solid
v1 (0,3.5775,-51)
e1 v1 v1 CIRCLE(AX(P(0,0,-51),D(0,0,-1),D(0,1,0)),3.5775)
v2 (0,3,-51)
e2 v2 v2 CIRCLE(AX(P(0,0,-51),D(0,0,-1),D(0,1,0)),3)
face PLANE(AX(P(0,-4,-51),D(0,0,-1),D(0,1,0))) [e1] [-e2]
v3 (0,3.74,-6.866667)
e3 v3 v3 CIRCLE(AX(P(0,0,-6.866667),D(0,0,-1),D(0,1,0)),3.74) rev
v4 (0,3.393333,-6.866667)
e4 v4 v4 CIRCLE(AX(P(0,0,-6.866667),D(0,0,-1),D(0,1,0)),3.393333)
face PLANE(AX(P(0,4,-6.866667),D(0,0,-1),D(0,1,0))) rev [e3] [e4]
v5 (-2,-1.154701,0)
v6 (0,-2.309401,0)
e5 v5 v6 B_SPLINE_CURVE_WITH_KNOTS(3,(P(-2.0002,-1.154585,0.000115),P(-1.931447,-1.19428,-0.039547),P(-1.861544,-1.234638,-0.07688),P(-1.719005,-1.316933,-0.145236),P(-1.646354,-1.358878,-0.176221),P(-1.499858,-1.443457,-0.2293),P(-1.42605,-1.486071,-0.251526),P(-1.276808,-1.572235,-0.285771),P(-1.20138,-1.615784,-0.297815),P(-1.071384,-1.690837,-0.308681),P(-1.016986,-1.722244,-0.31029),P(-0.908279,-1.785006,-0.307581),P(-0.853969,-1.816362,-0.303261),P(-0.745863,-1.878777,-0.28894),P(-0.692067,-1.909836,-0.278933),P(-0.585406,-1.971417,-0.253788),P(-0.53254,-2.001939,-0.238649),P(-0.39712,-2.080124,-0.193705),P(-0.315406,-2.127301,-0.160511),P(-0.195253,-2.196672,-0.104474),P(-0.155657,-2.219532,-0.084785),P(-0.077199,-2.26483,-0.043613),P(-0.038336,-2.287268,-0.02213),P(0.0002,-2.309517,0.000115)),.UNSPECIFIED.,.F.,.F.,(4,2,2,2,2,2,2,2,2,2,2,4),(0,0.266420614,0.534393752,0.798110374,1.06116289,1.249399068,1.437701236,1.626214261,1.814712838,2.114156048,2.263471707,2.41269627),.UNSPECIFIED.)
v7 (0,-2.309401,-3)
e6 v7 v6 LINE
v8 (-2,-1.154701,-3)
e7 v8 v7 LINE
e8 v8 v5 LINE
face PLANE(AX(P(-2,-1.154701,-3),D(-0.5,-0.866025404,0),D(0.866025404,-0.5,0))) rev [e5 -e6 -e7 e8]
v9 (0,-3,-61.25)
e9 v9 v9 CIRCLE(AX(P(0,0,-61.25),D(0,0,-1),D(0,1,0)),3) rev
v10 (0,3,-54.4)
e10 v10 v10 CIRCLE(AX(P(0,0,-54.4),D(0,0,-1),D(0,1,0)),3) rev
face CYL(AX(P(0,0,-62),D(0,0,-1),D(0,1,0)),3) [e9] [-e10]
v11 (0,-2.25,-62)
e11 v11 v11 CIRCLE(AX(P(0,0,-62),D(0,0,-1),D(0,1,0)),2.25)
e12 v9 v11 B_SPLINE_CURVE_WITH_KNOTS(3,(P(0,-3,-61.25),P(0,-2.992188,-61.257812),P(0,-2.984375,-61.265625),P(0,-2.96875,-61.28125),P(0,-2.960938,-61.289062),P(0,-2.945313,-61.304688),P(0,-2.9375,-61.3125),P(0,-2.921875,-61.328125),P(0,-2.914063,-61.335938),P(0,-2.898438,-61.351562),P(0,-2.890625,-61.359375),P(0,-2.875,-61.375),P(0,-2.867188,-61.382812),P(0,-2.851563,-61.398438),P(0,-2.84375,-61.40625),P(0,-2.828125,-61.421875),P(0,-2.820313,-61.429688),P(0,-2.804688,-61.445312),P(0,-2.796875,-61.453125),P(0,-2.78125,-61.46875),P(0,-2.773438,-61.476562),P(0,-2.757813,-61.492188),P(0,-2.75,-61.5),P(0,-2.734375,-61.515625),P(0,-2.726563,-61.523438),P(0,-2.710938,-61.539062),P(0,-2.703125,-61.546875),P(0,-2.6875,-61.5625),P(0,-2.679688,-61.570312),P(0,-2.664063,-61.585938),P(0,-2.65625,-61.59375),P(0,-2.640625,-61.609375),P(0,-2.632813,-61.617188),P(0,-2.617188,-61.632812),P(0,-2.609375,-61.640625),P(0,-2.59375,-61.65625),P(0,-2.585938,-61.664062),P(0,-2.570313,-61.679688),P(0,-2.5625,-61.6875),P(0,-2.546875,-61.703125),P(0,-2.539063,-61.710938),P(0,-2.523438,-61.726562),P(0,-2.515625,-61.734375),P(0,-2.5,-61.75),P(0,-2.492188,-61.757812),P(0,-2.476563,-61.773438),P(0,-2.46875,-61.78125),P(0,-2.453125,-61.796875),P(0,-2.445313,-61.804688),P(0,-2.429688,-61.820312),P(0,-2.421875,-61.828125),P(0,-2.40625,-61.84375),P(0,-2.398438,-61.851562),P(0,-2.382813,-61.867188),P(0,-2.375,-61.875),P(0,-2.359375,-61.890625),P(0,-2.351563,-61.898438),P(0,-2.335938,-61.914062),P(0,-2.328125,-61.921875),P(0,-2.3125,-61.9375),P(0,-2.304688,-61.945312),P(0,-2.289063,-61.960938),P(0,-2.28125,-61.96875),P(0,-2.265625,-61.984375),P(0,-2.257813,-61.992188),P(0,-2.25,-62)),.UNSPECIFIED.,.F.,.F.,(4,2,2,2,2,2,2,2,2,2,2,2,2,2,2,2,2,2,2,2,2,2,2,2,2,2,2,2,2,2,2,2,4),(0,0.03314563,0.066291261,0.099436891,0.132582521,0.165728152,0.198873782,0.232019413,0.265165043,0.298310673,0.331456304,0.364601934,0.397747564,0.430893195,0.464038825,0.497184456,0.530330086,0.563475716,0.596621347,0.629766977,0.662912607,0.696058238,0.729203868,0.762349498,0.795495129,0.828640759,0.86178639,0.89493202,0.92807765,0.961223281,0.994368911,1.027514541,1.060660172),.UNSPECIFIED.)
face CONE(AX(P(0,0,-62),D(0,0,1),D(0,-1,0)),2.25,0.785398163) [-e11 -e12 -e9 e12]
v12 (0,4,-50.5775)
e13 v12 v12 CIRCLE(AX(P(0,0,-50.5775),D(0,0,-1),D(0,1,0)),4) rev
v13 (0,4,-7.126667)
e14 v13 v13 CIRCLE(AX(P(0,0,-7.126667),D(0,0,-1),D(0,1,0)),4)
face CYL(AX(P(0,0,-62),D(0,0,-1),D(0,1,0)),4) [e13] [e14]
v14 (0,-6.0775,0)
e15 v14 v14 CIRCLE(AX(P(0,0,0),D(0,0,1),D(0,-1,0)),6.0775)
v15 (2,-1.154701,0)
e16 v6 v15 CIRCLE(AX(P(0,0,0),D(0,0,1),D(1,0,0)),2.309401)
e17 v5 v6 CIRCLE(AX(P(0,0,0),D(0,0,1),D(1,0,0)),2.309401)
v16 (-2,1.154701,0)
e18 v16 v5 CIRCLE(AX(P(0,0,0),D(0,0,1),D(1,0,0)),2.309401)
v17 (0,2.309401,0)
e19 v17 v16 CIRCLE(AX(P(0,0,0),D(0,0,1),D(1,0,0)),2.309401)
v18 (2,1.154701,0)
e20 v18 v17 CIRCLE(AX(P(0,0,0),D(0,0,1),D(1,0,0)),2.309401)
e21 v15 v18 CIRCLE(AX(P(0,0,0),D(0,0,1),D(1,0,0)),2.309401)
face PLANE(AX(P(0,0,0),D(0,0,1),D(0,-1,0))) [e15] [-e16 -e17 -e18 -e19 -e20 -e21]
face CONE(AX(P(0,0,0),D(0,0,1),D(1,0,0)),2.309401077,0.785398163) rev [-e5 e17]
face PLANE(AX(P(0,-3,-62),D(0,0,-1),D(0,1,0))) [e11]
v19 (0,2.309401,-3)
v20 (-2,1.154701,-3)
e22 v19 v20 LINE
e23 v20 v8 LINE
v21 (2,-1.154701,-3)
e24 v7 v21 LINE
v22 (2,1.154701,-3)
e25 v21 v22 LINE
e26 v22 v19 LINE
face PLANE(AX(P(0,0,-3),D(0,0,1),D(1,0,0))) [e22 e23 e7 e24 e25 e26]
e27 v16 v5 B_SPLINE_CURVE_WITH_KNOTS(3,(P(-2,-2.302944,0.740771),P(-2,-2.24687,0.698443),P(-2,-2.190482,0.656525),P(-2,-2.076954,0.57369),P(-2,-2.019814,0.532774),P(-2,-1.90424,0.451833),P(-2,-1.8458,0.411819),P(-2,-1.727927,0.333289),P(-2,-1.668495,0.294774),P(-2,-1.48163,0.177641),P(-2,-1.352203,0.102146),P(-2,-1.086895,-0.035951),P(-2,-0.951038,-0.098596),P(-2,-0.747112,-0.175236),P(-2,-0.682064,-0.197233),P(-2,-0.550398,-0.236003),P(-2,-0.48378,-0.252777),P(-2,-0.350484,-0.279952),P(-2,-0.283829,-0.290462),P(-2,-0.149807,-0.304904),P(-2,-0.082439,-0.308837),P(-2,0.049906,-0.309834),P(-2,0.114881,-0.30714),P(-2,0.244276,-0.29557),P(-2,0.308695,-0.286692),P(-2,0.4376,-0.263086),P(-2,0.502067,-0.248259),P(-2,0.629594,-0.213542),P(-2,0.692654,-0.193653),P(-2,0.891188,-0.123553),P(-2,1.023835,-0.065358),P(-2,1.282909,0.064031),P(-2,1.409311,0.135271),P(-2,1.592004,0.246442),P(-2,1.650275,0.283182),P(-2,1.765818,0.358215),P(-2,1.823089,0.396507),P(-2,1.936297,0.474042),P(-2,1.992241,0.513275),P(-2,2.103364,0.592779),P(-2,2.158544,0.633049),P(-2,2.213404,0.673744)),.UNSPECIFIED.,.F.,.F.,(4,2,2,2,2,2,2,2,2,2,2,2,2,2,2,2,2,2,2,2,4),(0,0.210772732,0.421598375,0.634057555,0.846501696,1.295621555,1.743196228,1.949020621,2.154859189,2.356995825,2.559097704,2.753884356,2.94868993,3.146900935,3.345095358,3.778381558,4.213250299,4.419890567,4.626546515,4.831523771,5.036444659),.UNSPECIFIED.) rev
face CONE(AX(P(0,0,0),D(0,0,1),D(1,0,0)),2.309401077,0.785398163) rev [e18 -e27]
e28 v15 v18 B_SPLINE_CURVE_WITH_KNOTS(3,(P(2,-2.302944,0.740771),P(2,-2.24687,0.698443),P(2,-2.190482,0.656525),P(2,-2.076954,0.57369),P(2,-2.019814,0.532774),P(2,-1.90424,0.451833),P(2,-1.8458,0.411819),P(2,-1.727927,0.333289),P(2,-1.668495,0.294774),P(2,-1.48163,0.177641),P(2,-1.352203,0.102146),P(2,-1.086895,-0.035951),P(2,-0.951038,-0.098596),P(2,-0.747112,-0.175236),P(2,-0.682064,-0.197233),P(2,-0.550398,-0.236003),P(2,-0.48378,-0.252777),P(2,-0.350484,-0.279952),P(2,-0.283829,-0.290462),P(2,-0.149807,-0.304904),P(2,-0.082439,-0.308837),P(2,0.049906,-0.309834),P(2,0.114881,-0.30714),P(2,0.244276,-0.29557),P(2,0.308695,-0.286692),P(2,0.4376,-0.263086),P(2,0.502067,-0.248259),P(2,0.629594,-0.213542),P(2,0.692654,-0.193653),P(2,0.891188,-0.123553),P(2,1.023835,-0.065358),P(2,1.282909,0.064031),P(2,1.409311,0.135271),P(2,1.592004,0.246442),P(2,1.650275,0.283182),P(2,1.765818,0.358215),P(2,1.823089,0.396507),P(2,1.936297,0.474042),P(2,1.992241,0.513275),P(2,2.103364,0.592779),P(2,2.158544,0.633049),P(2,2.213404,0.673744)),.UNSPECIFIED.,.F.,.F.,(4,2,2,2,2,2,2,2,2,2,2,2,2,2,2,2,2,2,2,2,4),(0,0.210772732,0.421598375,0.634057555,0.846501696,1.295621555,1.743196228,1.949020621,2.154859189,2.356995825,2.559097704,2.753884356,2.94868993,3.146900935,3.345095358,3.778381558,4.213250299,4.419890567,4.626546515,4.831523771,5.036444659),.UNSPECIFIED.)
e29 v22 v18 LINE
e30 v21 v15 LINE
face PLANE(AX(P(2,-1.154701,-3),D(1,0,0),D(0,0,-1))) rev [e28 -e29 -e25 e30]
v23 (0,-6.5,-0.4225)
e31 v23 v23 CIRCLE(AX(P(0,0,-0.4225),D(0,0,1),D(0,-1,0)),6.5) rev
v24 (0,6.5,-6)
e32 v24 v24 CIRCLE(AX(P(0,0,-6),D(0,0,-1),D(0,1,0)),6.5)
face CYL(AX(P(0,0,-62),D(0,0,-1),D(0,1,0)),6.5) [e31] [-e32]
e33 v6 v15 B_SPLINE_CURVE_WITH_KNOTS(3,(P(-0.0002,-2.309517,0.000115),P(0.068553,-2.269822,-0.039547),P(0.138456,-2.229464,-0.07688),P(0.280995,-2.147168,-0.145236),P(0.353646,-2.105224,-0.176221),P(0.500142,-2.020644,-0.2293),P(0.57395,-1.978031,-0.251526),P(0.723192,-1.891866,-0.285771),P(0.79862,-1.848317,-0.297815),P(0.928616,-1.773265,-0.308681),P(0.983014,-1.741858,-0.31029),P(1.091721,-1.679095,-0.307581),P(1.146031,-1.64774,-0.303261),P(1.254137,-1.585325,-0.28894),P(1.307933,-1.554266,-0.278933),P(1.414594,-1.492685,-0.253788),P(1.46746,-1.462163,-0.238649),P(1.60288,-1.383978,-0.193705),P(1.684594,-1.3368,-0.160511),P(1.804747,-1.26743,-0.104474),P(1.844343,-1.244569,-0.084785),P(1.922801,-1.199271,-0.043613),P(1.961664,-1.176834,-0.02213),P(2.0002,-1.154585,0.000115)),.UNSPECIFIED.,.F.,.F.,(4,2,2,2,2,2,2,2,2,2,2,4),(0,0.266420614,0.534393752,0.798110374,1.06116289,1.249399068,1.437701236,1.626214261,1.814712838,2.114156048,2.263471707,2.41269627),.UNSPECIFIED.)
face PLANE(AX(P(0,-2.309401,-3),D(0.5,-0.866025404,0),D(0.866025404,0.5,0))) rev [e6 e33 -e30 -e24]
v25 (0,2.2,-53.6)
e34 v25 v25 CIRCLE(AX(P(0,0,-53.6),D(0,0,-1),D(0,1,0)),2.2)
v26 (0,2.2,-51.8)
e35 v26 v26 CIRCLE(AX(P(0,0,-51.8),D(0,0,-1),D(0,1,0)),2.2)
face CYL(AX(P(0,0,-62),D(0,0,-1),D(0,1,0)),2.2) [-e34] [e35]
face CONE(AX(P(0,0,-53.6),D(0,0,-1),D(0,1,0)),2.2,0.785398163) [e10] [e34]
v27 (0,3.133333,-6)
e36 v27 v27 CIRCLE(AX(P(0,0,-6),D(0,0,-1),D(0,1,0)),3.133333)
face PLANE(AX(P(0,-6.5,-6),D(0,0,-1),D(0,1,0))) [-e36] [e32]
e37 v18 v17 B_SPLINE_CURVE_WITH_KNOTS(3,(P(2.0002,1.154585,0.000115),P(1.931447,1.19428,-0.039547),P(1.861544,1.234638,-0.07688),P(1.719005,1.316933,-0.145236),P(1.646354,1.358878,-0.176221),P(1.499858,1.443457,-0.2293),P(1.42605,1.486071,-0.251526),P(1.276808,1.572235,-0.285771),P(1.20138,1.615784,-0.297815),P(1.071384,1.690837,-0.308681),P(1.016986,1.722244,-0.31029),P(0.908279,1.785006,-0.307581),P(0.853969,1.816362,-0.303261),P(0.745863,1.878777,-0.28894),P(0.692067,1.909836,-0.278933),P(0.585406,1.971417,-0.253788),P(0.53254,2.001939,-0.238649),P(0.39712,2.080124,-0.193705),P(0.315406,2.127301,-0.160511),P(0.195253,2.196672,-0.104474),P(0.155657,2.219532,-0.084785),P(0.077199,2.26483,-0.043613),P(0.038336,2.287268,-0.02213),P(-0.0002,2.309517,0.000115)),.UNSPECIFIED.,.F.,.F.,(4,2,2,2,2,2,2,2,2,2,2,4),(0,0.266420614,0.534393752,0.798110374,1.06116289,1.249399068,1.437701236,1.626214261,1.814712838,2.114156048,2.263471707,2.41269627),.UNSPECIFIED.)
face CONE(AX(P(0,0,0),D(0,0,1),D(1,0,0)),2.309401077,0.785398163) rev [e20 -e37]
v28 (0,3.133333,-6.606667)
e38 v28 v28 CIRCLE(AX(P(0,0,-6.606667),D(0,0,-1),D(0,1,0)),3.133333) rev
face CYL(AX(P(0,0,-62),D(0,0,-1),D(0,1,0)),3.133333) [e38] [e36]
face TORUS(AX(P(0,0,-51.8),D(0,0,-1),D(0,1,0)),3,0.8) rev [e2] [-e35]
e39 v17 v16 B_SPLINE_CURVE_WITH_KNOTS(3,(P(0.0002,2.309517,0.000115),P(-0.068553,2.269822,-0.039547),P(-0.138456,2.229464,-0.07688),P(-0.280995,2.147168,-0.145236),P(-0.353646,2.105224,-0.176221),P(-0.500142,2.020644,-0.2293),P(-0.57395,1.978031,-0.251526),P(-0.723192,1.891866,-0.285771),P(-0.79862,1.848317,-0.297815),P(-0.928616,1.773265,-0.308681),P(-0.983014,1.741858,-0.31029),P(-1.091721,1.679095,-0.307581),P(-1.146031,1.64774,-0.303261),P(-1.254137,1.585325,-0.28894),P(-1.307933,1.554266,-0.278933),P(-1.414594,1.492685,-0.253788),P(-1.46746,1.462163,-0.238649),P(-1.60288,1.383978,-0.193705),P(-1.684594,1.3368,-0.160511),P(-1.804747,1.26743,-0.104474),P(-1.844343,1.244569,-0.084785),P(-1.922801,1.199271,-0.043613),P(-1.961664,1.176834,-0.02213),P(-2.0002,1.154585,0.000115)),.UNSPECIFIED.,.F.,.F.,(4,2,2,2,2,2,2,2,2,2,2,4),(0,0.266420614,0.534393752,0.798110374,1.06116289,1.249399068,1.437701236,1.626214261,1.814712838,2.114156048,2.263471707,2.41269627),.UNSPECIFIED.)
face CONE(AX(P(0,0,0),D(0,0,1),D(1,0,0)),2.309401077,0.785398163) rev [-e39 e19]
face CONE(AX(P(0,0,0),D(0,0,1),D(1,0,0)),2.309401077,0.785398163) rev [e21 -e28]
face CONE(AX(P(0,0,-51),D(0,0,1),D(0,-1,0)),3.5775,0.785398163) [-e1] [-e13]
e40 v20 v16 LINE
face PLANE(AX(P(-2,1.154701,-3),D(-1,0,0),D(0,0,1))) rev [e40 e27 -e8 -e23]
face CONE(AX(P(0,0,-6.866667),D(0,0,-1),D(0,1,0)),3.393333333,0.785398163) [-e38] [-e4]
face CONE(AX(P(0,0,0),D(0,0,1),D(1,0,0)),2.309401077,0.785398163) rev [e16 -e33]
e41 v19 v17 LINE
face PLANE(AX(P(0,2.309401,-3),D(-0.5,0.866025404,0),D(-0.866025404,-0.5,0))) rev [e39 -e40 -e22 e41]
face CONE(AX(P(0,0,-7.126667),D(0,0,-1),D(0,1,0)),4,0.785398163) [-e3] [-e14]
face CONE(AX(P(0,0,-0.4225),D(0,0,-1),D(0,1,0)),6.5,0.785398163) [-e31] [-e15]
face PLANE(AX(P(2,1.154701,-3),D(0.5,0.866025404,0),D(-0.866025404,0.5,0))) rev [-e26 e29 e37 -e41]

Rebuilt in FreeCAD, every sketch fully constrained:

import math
import FreeCAD as App
import Part
import Sketcher

V = App.Vector
Q = App.Units.Quantity


def edges_at(feature, points):
    """Names of the edges that pass closest to the given points."""
    edges = feature.Shape.Edges
    near = lambda p: min(range(len(edges)), key=lambda i: edges[i].distToShape(Part.Vertex(*p))[0])
    return sorted({f"Edge{near(p) + 1}" for p in points})

doc = App.newDocument("Part")
body = doc.addObject("PartDesign::Body", "Body")

# Sketch on YZ plane
sketch1 = doc.addObject("Sketcher::SketchObject", "Sketch")
body.addObject(sketch1)
sketch1.AttachmentSupport = (doc.YZ_Plane, [""])
sketch1.MapMode = "FlatFace"
sketch1.addGeometry([
    Part.LineSegment(V(6.5, -6, 0), V(6.5, 0, 0)),  # 0
    Part.LineSegment(V(6.5, 0, 0), V(0, 0, 0)),  # 1
    Part.LineSegment(V(0, 0, 0), V(0, -62, 0)),  # 2
    Part.LineSegment(V(0, -62, 0), V(3, -62, 0)),  # 3
    Part.LineSegment(V(3, -62, 0), V(3, -51, 0)),  # 4
    Part.LineSegment(V(3, -51, 0), V(4, -51, 0)),  # 5
    Part.LineSegment(V(4, -51, 0), V(4, -6, 0)),  # 6
    Part.LineSegment(V(4, -6, 0), V(6.5, -6, 0)),  # 7
], False)
sketch1.addConstraint([
    Sketcher.Constraint("Coincident", 0, 2, 1, 1),
    Sketcher.Constraint("Coincident", 1, 2, 2, 1),
    Sketcher.Constraint("Coincident", 2, 2, 3, 1),
    Sketcher.Constraint("Coincident", 3, 2, 4, 1),
    Sketcher.Constraint("Coincident", 4, 2, 5, 1),
    Sketcher.Constraint("Coincident", 5, 2, 6, 1),
    Sketcher.Constraint("Coincident", 6, 2, 7, 1),
    Sketcher.Constraint("Coincident", 7, 2, 0, 1),
    Sketcher.Constraint("Vertical", 0),
    Sketcher.Constraint("Horizontal", 1),
    Sketcher.Constraint("Vertical", 2),
    Sketcher.Constraint("Horizontal", 3),
    Sketcher.Constraint("Vertical", 4),
    Sketcher.Constraint("Horizontal", 5),
    Sketcher.Constraint("Vertical", 6),
    Sketcher.Constraint("Horizontal", 7),
    Sketcher.Constraint("Coincident", 1, 2, -1, 1),
    Sketcher.Constraint("DistanceX", 3, 1, 3, 2, Q("3 mm")),
    Sketcher.Constraint("DistanceX", 5, 1, 5, 2, Q("1 mm")),
    Sketcher.Constraint("DistanceY", 0, 1, 0, 2, Q("6 mm")),
    Sketcher.Constraint("DistanceY", 2, 2, 2, 1, Q("62 mm")),
    Sketcher.Constraint("DistanceY", 4, 1, 4, 2, Q("11 mm")),
    Sketcher.Constraint("DistanceX", 1, 2, 1, 1, Q("6.5 mm")),
])
revolution = doc.addObject("PartDesign::Revolution", "Revolution")
body.addObject(revolution)
revolution.Profile = sketch1
revolution.ReferenceAxis = (sketch1, ["V_Axis"])
revolution.Angle = 360

# Sketch on YZ plane
sketch2 = doc.addObject("Sketcher::SketchObject", "Sketch001")
body.addObject(sketch2)
sketch2.AttachmentSupport = (doc.YZ_Plane, [""])
sketch2.MapMode = "FlatFace"
sketch2.addGeometry([
    Part.LineSegment(V(4, -6, 0), V(3.1, -6, 0)),
    Part.LineSegment(V(3.1, -6, 0), V(3.1, -6.9, 0)),
    Part.LineSegment(V(3.1, -6.9, 0), V(4, -6.9, 0)),
    Part.LineSegment(V(4, -6.9, 0), V(4, -6, 0)),
], False)
sketch2.addConstraint([
    Sketcher.Constraint("Coincident", 0, 2, 1, 1),
    Sketcher.Constraint("Coincident", 1, 2, 2, 1),
    Sketcher.Constraint("Coincident", 2, 2, 3, 1),
    Sketcher.Constraint("Coincident", 3, 2, 0, 1),
    Sketcher.Constraint("Horizontal", 0),
    Sketcher.Constraint("Vertical", 1),
    Sketcher.Constraint("Horizontal", 2),
    Sketcher.Constraint("Vertical", 3),
    Sketcher.Constraint("Equal", 2, 1),
    Sketcher.Constraint("DistanceY", 0, 2, -1, 1, Q("6 mm")),
    Sketcher.Constraint("DistanceX", -1, 1, 2, 2, Q("4 mm")),
    Sketcher.Constraint("DistanceX", 0, 2, 0, 1, Q("0.866667 mm")),
])
groove = doc.addObject("PartDesign::Groove", "Groove")
body.addObject(groove)
groove.Profile = sketch2
groove.ReferenceAxis = (sketch2, ["V_Axis"])
groove.Angle = 360
doc.recompute()

chamfer = doc.addObject("PartDesign::Chamfer", "Chamfer")
body.addObject(chamfer)
chamfer.Base = (groove, edges_at(groove, [(0, -3.133, -6.867), (0, -4, -6.867)]))
chamfer.Size = 0.26

# Sketch on YZ plane
sketch3 = doc.addObject("Sketcher::SketchObject", "Sketch002")
body.addObject(sketch3)
sketch3.AttachmentSupport = (doc.YZ_Plane, [""])
sketch3.MapMode = "FlatFace"
sketch3.addGeometry([
    Part.LineSegment(V(4, -55.4, 0), V(4, -51, 0)),  # 0
    Part.LineSegment(V(4, -51, 0), V(3, -51, 0)),  # 1
    Part.ArcOfCircle(Part.Circle(V(3, -51.8, 0), V(0, 0, 1), 0.8), math.radians(90), math.radians(180)),  # 2
    Part.LineSegment(V(2.2, -51.8, 0), V(2.2, -53.6, 0)),  # 3
    Part.LineSegment(V(2.2, -53.6, 0), V(4, -55.4, 0)),  # 4
], False)
sketch3.addConstraint([
    Sketcher.Constraint("Coincident", 0, 2, 1, 1),
    Sketcher.Constraint("Tangent", 1, 2, 2, 1),
    Sketcher.Constraint("Tangent", 2, 2, 3, 1),
    Sketcher.Constraint("Coincident", 3, 2, 4, 1),
    Sketcher.Constraint("Coincident", 4, 2, 0, 1),
    Sketcher.Constraint("Vertical", 0),
    Sketcher.Constraint("Horizontal", 1),
    Sketcher.Constraint("Vertical", 3),
    Sketcher.Constraint("Radius", 2, Q("0.8 mm")),
    Sketcher.Constraint("DistanceX", 1, 2, 1, 1, Q("1 mm")),
    Sketcher.Constraint("Angle", 4, Q("-45 deg")),
    Sketcher.Constraint("DistanceY", 0, 1, 0, 2, Q("4.4 mm")),
    Sketcher.Constraint("DistanceX", -1, 1, 2, 3, Q("3 mm")),
    Sketcher.Constraint("DistanceY", 0, 2, -1, 1, Q("51 mm")),
])
groove2 = doc.addObject("PartDesign::Groove", "Groove001")
body.addObject(groove2)
groove2.Profile = sketch3
groove2.ReferenceAxis = (sketch3, ["V_Axis"])
groove2.Angle = 360
doc.recompute()

chamfer2 = doc.addObject("PartDesign::Chamfer", "Chamfer001")
body.addObject(chamfer2)
chamfer2.Base = (groove2, edges_at(groove2, [(0, -3, -62)]))
chamfer2.Size = 0.75
doc.recompute()

chamfer3 = doc.addObject("PartDesign::Chamfer", "Chamfer002")
body.addObject(chamfer3)
chamfer3.Base = (chamfer2, edges_at(chamfer2, [(0, -4, -51), (0, -6.5, 0)]))
chamfer3.Size = 0.4225

# Sketch on XY plane
sketch4 = doc.addObject("Sketcher::SketchObject", "Sketch003")
body.addObject(sketch4)
sketch4.AttachmentSupport = (doc.XY_Plane, [""])
sketch4.MapMode = "FlatFace"
sketch4.addGeometry([
    Part.LineSegment(V(2, 1.2, 0), V(0, 2.3, 0)),  # 0
    Part.LineSegment(V(0, 2.3, 0), V(-2, 1.2, 0)),  # 1
    Part.LineSegment(V(-2, 1.2, 0), V(-2, -1.2, 0)),  # 2
    Part.LineSegment(V(-2, -1.2, 0), V(0, -2.3, 0)),  # 3
    Part.LineSegment(V(0, -2.3, 0), V(2, -1.2, 0)),  # 4
    Part.LineSegment(V(2, -1.2, 0), V(2, 1.2, 0)),  # 5
], False)
sketch4.addConstraint([
    Sketcher.Constraint("Coincident", 0, 2, 1, 1),
    Sketcher.Constraint("Coincident", 1, 2, 2, 1),
    Sketcher.Constraint("Coincident", 2, 2, 3, 1),
    Sketcher.Constraint("Coincident", 3, 2, 4, 1),
    Sketcher.Constraint("Coincident", 4, 2, 5, 1),
    Sketcher.Constraint("Coincident", 5, 2, 0, 1),
    Sketcher.Constraint("Vertical", 2),
    Sketcher.Constraint("Vertical", 5),
    Sketcher.Constraint("Symmetric", 0, 2, 3, 2, -1, 1),
    Sketcher.Constraint("Symmetric", 1, 2, 4, 2, -1, 1),
    Sketcher.Constraint("PointOnObject", 0, 2, -2),
    Sketcher.Constraint("Parallel", 0, 3),
    Sketcher.Constraint("Horizontal", 2, 2, 4, 2),
    Sketcher.Constraint("Angle", 0, Q("150 deg")),
    Sketcher.Constraint("DistanceX", 1, 2, -1, 1, Q("2 mm")),
    Sketcher.Constraint("DistanceY", 2, 2, 2, 1, Q("2.309401 mm")),
])
pocket1 = doc.addObject("PartDesign::Pocket", "Pocket")
body.addObject(pocket1)
pocket1.Profile = sketch4
pocket1.Length = 3

# Sketch on YZ plane
sketch5 = doc.addObject("Sketcher::SketchObject", "Sketch004")
body.addObject(sketch5)
sketch5.AttachmentSupport = (doc.YZ_Plane, [""])
sketch5.MapMode = "FlatFace"
sketch5.addGeometry([
    Part.LineSegment(V(0, 0, 0), V(-2.3, 0, 0)),
    Part.LineSegment(V(-2.3, 0, 0), V(0, -2.3, 0)),
    Part.LineSegment(V(0, -2.3, 0), V(0, 0, 0)),
], False)
sketch5.addConstraint([
    Sketcher.Constraint("Coincident", 0, 2, 1, 1),
    Sketcher.Constraint("Coincident", 1, 2, 2, 1),
    Sketcher.Constraint("Coincident", 2, 2, 0, 1),
    Sketcher.Constraint("Horizontal", 0),
    Sketcher.Constraint("Vertical", 2),
    Sketcher.Constraint("Coincident", 2, 2, -1, 1),
    Sketcher.Constraint("Equal", 0, 2),
    Sketcher.Constraint("DistanceX", 0, 2, 0, 1, Q("2.309401 mm")),
])
groove3 = doc.addObject("PartDesign::Groove", "Groove002")
body.addObject(groove3)
groove3.Profile = sketch5
groove3.ReferenceAxis = (sketch5, ["V_Axis"])
groove3.Angle = 360

doc.recompute()
